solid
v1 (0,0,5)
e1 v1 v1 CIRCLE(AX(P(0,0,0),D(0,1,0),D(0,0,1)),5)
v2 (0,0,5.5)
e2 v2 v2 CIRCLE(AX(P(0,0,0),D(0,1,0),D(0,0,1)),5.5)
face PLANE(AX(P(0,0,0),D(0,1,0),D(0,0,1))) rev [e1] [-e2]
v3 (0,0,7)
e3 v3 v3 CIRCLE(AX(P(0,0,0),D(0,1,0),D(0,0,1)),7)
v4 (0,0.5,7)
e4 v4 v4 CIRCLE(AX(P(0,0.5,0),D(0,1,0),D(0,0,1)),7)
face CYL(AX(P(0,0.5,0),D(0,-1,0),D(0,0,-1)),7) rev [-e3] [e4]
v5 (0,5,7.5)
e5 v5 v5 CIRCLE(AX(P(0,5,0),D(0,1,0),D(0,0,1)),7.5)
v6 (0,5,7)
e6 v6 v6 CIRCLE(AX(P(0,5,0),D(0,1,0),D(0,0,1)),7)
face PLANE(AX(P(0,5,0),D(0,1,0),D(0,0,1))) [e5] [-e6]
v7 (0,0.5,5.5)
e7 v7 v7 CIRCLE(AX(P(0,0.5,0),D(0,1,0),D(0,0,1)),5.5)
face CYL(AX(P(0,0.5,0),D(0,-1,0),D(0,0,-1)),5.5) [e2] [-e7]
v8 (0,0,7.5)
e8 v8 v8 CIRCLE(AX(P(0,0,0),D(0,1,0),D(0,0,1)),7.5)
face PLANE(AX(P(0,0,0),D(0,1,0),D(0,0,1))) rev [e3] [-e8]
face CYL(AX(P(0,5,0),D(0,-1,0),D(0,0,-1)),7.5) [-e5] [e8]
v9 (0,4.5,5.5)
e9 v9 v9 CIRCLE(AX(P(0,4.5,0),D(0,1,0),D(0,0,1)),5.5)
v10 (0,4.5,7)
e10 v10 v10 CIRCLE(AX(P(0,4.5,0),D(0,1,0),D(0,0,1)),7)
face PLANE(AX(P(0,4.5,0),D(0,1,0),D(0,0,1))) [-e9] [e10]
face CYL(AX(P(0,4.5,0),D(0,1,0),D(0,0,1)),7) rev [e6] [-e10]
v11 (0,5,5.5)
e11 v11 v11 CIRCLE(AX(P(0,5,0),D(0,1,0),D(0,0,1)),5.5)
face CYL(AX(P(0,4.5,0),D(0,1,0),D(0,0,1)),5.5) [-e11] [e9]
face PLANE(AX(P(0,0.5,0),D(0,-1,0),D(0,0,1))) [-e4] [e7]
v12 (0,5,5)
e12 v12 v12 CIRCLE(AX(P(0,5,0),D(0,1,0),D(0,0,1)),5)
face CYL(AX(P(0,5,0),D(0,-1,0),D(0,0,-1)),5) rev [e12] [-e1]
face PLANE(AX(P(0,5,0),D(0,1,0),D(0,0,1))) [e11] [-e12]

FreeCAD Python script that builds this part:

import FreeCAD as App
import Part
import Sketcher

V = App.Vector

doc = App.newDocument("Part")
body = doc.addObject("PartDesign::Body", "Body")

sketch1 = doc.addObject("Sketcher::SketchObject", "Sketch")
body.addObject(sketch1)
sketch1.AttachmentSupport = (doc.XZ_Plane, [""])
sketch1.MapMode = "FlatFace"
sketch1.addGeometry([
    Part.Circle(V(0, 0, 0), V(0, 0, 1), 7.5),
    Part.Circle(V(0, 0, 0), V(0, 0, 1), 5),
], False)
sketch1.addConstraint([
    Sketcher.Constraint("Coincident", 0, 3, -1, 1),
    Sketcher.Constraint("Coincident", 1, 3, -1, 1),
    Sketcher.Constraint("Diameter", 0, 15.0),
    Sketcher.Constraint("Diameter", 1, 10.0),
])
pad1 = doc.addObject("PartDesign::Pad", "Pad")
body.addObject(pad1)
pad1.Profile = sketch1
pad1.Length = 5
pad1.Reversed = True

sketch2 = doc.addObject("Sketcher::SketchObject", "Sketch001")
body.addObject(sketch2)
sketch2.AttachmentSupport = (doc.XZ_Plane, [""])
sketch2.MapMode = "FlatFace"
sketch2.AttachmentOffset = App.Placement(V(0, 0, -5), App.Rotation())
sketch2.addGeometry([
    Part.Circle(V(0, 0, 0), V(0, 0, 1), 7),
    Part.Circle(V(0, 0, 0), V(0, 0, 1), 5.5),
], False)
sketch2.addConstraint([
    Sketcher.Constraint("Coincident", 0, 3, -1, 1),
    Sketcher.Constraint("Coincident", 1, 3, -1, 1),
    Sketcher.Constraint("Diameter", 0, 14.0),
    Sketcher.Constraint("Diameter", 1, 11.0),
])
pocket1 = doc.addObject("PartDesign::Pocket", "Pocket")
body.addObject(pocket1)
pocket1.Profile = sketch2
pocket1.Length = 0.5
pocket1.Reversed = True
doc.recompute()

datumplane = doc.addObject("PartDesign::Plane", "DatumPlane")
body.addObject(datumplane)
datumplane.AttachmentSupport = (doc.XZ_Plane, [""])
datumplane.MapMode = "FlatFace"
datumplane.AttachmentOffset = App.Placement(V(0, 0, -2.5), App.Rotation())
mirrored = doc.addObject("PartDesign::Mirrored", "Mirrored")
body.addObject(mirrored)
mirrored.Originals = [pocket1]
mirrored.MirrorPlane = (datumplane, [""])
body.Tip = mirrored

doc.recompute()
